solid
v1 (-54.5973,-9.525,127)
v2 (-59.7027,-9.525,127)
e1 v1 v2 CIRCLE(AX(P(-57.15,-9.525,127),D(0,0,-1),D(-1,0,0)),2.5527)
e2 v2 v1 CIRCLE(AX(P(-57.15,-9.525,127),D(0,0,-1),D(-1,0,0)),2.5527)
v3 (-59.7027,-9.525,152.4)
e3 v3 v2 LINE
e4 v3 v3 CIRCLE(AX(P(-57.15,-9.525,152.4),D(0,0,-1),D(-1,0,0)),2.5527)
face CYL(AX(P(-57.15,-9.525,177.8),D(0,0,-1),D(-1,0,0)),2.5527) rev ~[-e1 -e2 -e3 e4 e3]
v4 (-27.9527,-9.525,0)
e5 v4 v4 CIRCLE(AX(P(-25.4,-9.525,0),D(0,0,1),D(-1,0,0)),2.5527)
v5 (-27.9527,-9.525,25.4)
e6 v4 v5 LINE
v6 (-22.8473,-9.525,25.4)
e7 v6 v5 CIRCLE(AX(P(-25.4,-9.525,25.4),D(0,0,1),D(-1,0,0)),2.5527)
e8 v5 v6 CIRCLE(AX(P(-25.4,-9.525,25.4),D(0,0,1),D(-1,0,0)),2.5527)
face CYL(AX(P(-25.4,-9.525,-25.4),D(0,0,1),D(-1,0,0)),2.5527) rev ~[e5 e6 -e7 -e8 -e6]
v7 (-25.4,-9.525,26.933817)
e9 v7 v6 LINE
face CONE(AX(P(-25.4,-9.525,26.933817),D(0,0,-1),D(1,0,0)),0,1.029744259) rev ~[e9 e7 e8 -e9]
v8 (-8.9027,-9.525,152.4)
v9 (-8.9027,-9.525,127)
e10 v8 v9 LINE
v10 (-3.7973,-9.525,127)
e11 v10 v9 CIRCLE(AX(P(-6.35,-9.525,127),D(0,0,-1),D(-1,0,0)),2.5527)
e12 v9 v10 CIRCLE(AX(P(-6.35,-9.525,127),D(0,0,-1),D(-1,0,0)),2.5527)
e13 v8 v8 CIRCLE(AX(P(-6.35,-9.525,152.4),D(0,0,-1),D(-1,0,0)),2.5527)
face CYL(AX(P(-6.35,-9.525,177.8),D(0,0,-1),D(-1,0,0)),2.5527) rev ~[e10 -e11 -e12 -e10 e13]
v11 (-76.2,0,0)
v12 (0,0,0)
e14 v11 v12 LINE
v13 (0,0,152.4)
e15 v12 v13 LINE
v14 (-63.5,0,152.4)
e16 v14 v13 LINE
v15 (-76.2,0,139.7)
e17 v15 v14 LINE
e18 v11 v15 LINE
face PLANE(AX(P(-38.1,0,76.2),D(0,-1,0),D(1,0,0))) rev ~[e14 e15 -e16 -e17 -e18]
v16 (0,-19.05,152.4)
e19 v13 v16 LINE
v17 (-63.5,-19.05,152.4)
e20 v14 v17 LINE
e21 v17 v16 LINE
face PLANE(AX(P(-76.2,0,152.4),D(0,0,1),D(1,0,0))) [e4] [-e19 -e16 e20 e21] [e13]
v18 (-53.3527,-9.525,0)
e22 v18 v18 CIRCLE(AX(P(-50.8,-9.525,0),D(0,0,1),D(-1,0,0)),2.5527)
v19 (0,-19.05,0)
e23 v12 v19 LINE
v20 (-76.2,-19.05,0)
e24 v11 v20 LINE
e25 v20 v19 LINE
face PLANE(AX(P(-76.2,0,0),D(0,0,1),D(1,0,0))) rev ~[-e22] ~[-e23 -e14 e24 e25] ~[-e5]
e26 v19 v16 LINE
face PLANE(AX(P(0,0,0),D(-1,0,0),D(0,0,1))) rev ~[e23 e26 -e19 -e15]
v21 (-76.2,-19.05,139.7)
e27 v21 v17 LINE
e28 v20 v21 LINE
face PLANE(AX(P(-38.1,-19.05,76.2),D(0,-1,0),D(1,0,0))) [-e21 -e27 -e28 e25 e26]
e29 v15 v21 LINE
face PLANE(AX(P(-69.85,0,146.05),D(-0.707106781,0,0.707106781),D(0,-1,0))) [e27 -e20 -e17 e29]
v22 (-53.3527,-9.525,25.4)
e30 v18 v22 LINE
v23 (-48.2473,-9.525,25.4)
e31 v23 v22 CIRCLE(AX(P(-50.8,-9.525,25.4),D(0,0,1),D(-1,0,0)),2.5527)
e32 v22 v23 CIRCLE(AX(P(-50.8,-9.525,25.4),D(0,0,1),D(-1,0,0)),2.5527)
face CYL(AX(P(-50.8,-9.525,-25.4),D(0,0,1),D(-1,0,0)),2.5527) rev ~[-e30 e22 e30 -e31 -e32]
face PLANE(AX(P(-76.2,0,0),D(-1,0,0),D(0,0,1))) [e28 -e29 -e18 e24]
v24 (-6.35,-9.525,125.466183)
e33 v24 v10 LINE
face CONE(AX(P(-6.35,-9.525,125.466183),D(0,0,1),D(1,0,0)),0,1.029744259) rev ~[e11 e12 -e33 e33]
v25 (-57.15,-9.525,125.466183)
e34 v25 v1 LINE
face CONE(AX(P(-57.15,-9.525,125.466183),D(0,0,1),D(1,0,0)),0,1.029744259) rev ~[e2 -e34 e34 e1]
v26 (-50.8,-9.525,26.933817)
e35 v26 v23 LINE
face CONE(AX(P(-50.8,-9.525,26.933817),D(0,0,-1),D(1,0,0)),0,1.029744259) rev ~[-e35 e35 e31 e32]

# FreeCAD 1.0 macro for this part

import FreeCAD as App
import Part
import Sketcher
from FreeCAD import Vector
Q = App.Units.Quantity


def edges_at(feature, points):
    """Names of the edges that pass closest to the given points."""
    edges = feature.Shape.Edges
    near = lambda p: min(range(len(edges)), key=lambda i: edges[i].distToShape(Part.Vertex(*p))[0])
    return sorted({f"Edge{near(p) + 1}" for p in points})

doc = App.newDocument("Part")
params = doc.addObject("Spreadsheet::Sheet", "Params")
for row, (alias, value) in enumerate([
    ("sketch1_width", "3 in"),
    ("sketch1_height", "6 in"),
    ("pad1_length", "0.75 in"),
    ("sketch2_diameter", "0.201 in"),
    ("hole_diameter", "0.201 in"),
    ("hole_depth", "1 in"),
    ("sketch3_diameter", "0.201 in"),
    ("hole2_diameter", "0.201 in"),
    ("hole2_depth", "1 in"),
    ("sketch4_diameter", "0.201 in"),
    ("hole3_diameter", "0.201 in"),
    ("hole3_depth", "1 in"),
    ("chamfer_size", "0.5 in"),
], start=1):
    params.set(f"A{row}", alias)
    params.set(f"B{row}", "=" + value)
    params.setAlias(f"B{row}", alias)

body = doc.addObject("PartDesign::Body", "Body")

# Sketch on XZ plane
sketch1 = body.newObject("Sketcher::SketchObject", "Sketch")
sketch1.AttachmentSupport = (doc.getObject("XZ_Plane"), [""])
sketch1.MapMode = "FlatFace"
sketch1.addGeometry([
    Part.LineSegment(Vector(-76, 152, 0), Vector(-76, 0, 0)),
    Part.LineSegment(Vector(-76, 0, 0), Vector(0, 0, 0)),
    Part.LineSegment(Vector(0, 0, 0), Vector(0, 152, 0)),
    Part.LineSegment(Vector(0, 152, 0), Vector(-76, 152, 0)),
], False)
sketch1.addConstraint([
    Sketcher.Constraint("Coincident", 0, 2, 1, 1),
    Sketcher.Constraint("Coincident", 1, 2, 2, 1),
    Sketcher.Constraint("Coincident", 2, 2, 3, 1),
    Sketcher.Constraint("Coincident", 3, 2, 0, 1),
    Sketcher.Constraint("Vertical", 0),
    Sketcher.Constraint("Horizontal", 1),
    Sketcher.Constraint("Vertical", 2),
    Sketcher.Constraint("Horizontal", 3),
    Sketcher.Constraint("Coincident", 1, 2, -1, 1),
    Sketcher.Constraint("DistanceX", 1, 1, 1, 2, Q("3 in")),
    Sketcher.Constraint("DistanceY", 0, 2, 0, 1, Q("6 in")),
])
sketch1.setExpression("Constraints[9]", "Params.sketch1_width")
sketch1.setExpression("Constraints[10]", "Params.sketch1_height")
pad1 = body.newObject("PartDesign::Pad", "Pad")
pad1.Profile = sketch1
pad1.setExpression("Length", "Params.pad1_length")

# Sketch on XY plane
sketch2 = body.newObject("Sketcher::SketchObject", "Sketch001")
sketch2.AttachmentSupport = (doc.getObject("XY_Plane"), [""])
sketch2.MapMode = "FlatFace"
sketch2.addGeometry(Part.Circle(Vector(-50.8, -9.5, 0), Vector(0, 0, 1), 2.6), False)
sketch2.addConstraint([
    Sketcher.Constraint("Diameter", 0, Q("0.201 in")),
    Sketcher.Constraint("DistanceX", 0, 3, -1, 1, Q("2 in")),
    Sketcher.Constraint("DistanceY", 0, 3, -1, 1, Q("0.375 in")),
])
sketch2.setExpression("Constraints[0]", "Params.sketch2_diameter")
doc.recompute()
hole = body.newObject("PartDesign::Hole", "Hole")
hole.Profile = sketch2
hole.ThreadType = "None"
hole.setExpression("Diameter", "Params.hole_diameter")
hole.DepthType = "Dimension"
hole.setExpression("Depth", "Params.hole_depth")
hole.DrillPoint = "Angled"
hole.DrillPointAngle = 118
hole.Reversed = True

# Sketch on XY plane
sketch3 = body.newObject("Sketcher::SketchObject", "Sketch002")
sketch3.AttachmentSupport = (doc.getObject("XY_Plane"), [""])
sketch3.MapMode = "FlatFace"
sketch3.addGeometry(Part.Circle(Vector(-25.4, -9.5, 0), Vector(0, 0, 1), 2.6), False)
sketch3.addConstraint([
    Sketcher.Constraint("Diameter", 0, Q("0.201 in")),
    Sketcher.Constraint("DistanceX", 0, 3, -1, 1, Q("1 in")),
    Sketcher.Constraint("DistanceY", 0, 3, -1, 1, Q("0.375 in")),
])
sketch3.setExpression("Constraints[0]", "Params.sketch3_diameter")
doc.recompute()
hole2 = body.newObject("PartDesign::Hole", "Hole001")
hole2.Profile = sketch3
hole2.ThreadType = "None"
hole2.setExpression("Diameter", "Params.hole2_diameter")
hole2.DepthType = "Dimension"
hole2.setExpression("Depth", "Params.hole2_depth")
hole2.DrillPoint = "Angled"
hole2.DrillPointAngle = 118
hole2.Reversed = True

# Sketch on XY plane
sketch4 = body.newObject("Sketcher::SketchObject", "Sketch003")
sketch4.AttachmentSupport = (doc.getObject("XY_Plane"), [""])
sketch4.MapMode = "FlatFace"
sketch4.AttachmentOffset = App.Placement(Vector(0, 0, 6 * 25.4), App.Rotation())
sketch4.addGeometry([
    Part.Circle(Vector(-57.1, -9.5, 0), Vector(0, 0, 1), 2.6),
    Part.Circle(Vector(-6.3, -9.5, 0), Vector(0, 0, 1), 2.6),
], False)
sketch4.addConstraint([
    Sketcher.Constraint("Equal", 0, 1),
    Sketcher.Constraint("Horizontal", 0, 3, 1, 3),
    Sketcher.Constraint("Diameter", 0, Q("0.201 in")),
    Sketcher.Constraint("DistanceX", 0, 3, 1, 3, Q("2 in")),
    Sketcher.Constraint("DistanceX", 0, 3, -1, 1, Q("2.25 in")),
    Sketcher.Constraint("DistanceY", 0, 3, -1, 1, Q("0.375 in")),
])
sketch4.setExpression("Constraints[2]", "Params.sketch4_diameter")
doc.recompute()
hole3 = body.newObject("PartDesign::Hole", "Hole002")
hole3.Profile = sketch4
hole3.ThreadType = "None"
hole3.setExpression("Diameter", "Params.hole3_diameter")
hole3.DepthType = "Dimension"
hole3.setExpression("Depth", "Params.hole3_depth")
hole3.DrillPoint = "Angled"
hole3.DrillPointAngle = 118
doc.recompute()

chamfer = body.newObject("PartDesign::Chamfer", "Chamfer")
chamfer.Base = (hole3, edges_at(hole3, [(-76.2, -9.525, 152.4)]))
chamfer.setExpression("Size", "Params.chamfer_size")

doc.recompute()
